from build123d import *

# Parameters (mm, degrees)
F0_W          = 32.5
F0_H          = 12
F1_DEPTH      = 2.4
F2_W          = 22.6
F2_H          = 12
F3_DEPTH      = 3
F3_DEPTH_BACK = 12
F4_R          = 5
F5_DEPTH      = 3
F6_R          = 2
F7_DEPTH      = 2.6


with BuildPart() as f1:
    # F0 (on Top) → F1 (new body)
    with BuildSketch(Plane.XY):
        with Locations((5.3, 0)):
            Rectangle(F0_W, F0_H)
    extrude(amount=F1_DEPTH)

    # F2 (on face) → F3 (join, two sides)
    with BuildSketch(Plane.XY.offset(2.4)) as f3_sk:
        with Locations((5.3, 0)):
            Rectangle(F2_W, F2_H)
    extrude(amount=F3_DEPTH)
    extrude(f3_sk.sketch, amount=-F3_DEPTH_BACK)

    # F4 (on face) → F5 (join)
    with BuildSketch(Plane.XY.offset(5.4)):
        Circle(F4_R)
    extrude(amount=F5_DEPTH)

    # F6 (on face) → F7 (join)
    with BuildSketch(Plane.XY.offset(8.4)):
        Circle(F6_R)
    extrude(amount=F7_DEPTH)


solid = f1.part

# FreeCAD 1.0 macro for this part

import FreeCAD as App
import Part
import Sketcher
from FreeCAD import Vector
Q = App.Units.Quantity


def add_polygon(sketch, points):
    """Adds a closed chain of lines whose ends are joined by coincident constraints."""
    first, n = sketch.GeometryCount, len(points)
    for a, b in zip(points, points[1:] + points[:1]):
        sketch.addGeometry(Part.LineSegment(App.Vector(*a, 0), App.Vector(*b, 0)), False)
    for i in range(n):
        sketch.addConstraint(Sketcher.Constraint("Coincident", first + i, 2, first + (i + 1) % n, 1))

doc = App.newDocument("Part")
body = doc.addObject("PartDesign::Body", "Body")

# Sketch on XY plane
sketch1 = doc.addObject("Sketcher::SketchObject", "Sketch")
body.addObject(sketch1)
sketch1.AttachmentSupport = (doc.XY_Plane, [""])
sketch1.MapMode = "FlatFace"
add_polygon(sketch1, [(-11, 6), (-11, -6), (22, -6), (22, 6)])  # lines 0-3
sketch1.addConstraint([
    Sketcher.Constraint("Vertical", 0),
    Sketcher.Constraint("Horizontal", 1),
    Sketcher.Constraint("Vertical", 2),
    Sketcher.Constraint("Horizontal", 3),
    Sketcher.Constraint("DistanceY", 0, 2, 0, 1, Q("12 mm")),
    Sketcher.Constraint("DistanceX", 1, 1, 1, 2, Q("32.5 mm")),
    Sketcher.Constraint("DistanceY", 0, 2, -1, 1, Q("6 mm")),
    Sketcher.Constraint("DistanceX", 0, 2, -1, 1, Q("10.95 mm")),
])
pad1 = doc.addObject("PartDesign::Pad", "Pad")
body.addObject(pad1)
pad1.Profile = sketch1
pad1.Length = 2.4

# Sketch on XY plane
sketch2 = doc.addObject("Sketcher::SketchObject", "Sketch001")
body.addObject(sketch2)
sketch2.AttachmentSupport = (doc.XY_Plane, [""])
sketch2.MapMode = "FlatFace"
sketch2.AttachmentOffset = App.Placement(Vector(0, 0, 2.4), App.Rotation())
add_polygon(sketch2, [(-6, 6), (-6, -6), (17, -6), (17, 6)])  # lines 0-3
sketch2.addConstraint([
    Sketcher.Constraint("Vertical", 0),
    Sketcher.Constraint("Horizontal", 1),
    Sketcher.Constraint("Vertical", 2),
    Sketcher.Constraint("Horizontal", 3),
    Sketcher.Constraint("DistanceY", 0, 2, 0, 1, Q("12 mm")),
    Sketcher.Constraint("DistanceX", 1, 1, 1, 2, Q("22.6 mm")),
    Sketcher.Constraint("DistanceX", 0, 2, -1, 1, Q("6 mm")),
    Sketcher.Constraint("DistanceY", 0, 2, -1, 1, Q("6 mm")),
])
pad2 = doc.addObject("PartDesign::Pad", "Pad001")
body.addObject(pad2)
pad2.Profile = sketch2
pad2.Type = "TwoLengths"
pad2.Length = 3
pad2.Length2 = 12

# Sketch on XY plane
sketch3 = doc.addObject("Sketcher::SketchObject", "Sketch002")
body.addObject(sketch3)
sketch3.AttachmentSupport = (doc.XY_Plane, [""])
sketch3.MapMode = "FlatFace"
sketch3.AttachmentOffset = App.Placement(Vector(0, 0, 5.4), App.Rotation())
sketch3.addGeometry(Part.Circle(Vector(0, 0, 0), Vector(0, 0, 1), 5), False)
sketch3.addConstraint([
    Sketcher.Constraint("Coincident", 0, 3, -1, 1),
    Sketcher.Constraint("Diameter", 0, Q("10 mm")),
])
pad3 = doc.addObject("PartDesign::Pad", "Pad002")
body.addObject(pad3)
pad3.Profile = sketch3
pad3.Length = 3

# Sketch on XY plane
sketch4 = doc.addObject("Sketcher::SketchObject", "Sketch003")
body.addObject(sketch4)
sketch4.AttachmentSupport = (doc.XY_Plane, [""])
sketch4.MapMode = "FlatFace"
sketch4.AttachmentOffset = App.Placement(Vector(0, 0, 8.4), App.Rotation())
sketch4.addGeometry(Part.Circle(Vector(0, 0, 0), Vector(0, 0, 1), 2), False)
sketch4.addConstraint([
    Sketcher.Constraint("Coincident", 0, 3, -1, 1),
    Sketcher.Constraint("Diameter", 0, Q("4 mm")),
])
pad4 = doc.addObject("PartDesign::Pad", "Pad003")
body.addObject(pad4)
pad4.Profile = sketch4
pad4.Length = 2.6

doc.recompute()
